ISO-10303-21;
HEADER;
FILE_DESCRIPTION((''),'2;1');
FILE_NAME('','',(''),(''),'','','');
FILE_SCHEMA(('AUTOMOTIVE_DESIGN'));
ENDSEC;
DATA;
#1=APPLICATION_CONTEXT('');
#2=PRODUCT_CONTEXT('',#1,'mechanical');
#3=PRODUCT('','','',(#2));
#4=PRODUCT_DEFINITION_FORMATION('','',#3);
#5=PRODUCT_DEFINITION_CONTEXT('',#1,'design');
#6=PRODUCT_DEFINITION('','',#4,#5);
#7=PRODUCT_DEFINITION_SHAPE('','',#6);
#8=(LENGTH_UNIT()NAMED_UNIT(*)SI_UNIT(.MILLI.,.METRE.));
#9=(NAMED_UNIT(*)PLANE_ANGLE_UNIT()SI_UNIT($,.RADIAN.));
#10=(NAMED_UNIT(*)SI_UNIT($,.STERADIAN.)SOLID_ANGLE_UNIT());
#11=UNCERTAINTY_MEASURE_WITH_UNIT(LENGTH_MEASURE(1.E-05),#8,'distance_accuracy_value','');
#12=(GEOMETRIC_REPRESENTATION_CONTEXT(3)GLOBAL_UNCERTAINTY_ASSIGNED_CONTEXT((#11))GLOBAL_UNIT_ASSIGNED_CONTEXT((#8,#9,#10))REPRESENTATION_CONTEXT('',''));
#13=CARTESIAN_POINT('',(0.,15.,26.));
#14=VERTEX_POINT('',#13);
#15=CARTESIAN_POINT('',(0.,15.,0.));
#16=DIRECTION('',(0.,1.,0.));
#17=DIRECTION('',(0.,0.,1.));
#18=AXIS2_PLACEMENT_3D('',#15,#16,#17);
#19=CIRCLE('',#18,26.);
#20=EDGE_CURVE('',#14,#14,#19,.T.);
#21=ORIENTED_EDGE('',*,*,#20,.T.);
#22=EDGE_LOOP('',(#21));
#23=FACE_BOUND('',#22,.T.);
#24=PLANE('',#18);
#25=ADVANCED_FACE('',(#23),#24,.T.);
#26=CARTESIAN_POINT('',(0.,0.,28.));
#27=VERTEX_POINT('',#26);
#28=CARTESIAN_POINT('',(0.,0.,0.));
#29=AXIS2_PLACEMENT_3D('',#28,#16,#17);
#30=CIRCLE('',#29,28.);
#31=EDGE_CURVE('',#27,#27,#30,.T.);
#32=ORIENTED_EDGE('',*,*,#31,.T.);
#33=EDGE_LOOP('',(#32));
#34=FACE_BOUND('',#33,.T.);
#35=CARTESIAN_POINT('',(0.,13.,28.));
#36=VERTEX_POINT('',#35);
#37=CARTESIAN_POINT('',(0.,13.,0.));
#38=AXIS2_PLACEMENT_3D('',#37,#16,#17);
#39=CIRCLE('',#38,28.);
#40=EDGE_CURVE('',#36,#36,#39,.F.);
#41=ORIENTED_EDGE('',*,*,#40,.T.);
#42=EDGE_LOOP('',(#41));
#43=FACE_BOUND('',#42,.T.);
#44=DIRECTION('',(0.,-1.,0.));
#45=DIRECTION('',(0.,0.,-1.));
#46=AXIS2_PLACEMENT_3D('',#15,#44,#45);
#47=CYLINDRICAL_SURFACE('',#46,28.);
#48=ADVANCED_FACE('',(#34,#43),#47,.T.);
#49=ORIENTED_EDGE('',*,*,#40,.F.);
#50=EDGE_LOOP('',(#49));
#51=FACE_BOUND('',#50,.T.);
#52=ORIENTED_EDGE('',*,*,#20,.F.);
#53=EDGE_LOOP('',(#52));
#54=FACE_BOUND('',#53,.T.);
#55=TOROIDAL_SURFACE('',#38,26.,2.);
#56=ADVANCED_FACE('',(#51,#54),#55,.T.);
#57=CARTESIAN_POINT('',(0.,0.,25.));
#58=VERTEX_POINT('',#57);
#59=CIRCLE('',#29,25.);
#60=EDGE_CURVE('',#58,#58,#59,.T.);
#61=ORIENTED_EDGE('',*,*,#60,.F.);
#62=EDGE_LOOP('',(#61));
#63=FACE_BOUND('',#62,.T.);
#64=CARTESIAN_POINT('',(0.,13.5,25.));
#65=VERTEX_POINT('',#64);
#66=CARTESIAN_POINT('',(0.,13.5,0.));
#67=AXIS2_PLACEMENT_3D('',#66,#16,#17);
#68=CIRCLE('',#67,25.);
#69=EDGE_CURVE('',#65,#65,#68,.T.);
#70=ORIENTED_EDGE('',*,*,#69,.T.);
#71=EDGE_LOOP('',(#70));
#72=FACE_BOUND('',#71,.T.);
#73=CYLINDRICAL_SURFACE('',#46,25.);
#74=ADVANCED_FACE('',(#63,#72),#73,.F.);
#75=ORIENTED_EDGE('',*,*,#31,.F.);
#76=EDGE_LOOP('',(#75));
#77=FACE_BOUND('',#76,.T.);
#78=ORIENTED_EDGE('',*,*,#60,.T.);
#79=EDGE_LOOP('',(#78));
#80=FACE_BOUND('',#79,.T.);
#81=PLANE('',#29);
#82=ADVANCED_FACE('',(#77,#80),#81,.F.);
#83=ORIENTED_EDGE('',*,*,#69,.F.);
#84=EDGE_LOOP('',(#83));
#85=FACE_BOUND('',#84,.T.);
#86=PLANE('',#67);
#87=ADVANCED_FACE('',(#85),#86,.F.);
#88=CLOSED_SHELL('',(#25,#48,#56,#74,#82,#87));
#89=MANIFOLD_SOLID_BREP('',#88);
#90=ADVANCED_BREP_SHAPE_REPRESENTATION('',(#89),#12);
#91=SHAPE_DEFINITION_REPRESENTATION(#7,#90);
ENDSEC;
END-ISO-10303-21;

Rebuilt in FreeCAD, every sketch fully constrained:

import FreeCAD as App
import Part
import Sketcher
Q = App.Units.Quantity


def edges_at(feature, points):
    """Names of the edges that pass closest to the given points."""
    edges = feature.Shape.Edges
    near = lambda p: min(range(len(edges)), key=lambda i: edges[i].distToShape(Part.Vertex(*p))[0])
    return sorted({f"Edge{near(p) + 1}" for p in points})

doc = App.newDocument("Part")
body = doc.addObject("PartDesign::Body", "Body")

# Sketch on XZ plane
sketch1 = body.newObject("Sketcher::SketchObject", "Sketch")
sketch1.AttachmentSupport = (doc.getObject("XZ_Plane"), [""])
sketch1.MapMode = "FlatFace"
sketch1.addGeometry([
    Part.Circle(App.Vector(0, 0, 0), App.Vector(0, 0, 1), 28),
    Part.Circle(App.Vector(0, 0, 0), App.Vector(0, 0, 1), 25),
], False)
sketch1.addConstraint([
    Sketcher.Constraint("Coincident", 0, 3, -1, 1),
    Sketcher.Constraint("Coincident", 1, 3, -1, 1),
    Sketcher.Constraint("Diameter", 0, Q("56 mm")),
    Sketcher.Constraint("Diameter", 1, Q("50 mm")),
])
pad1 = body.newObject("PartDesign::Pad", "Pad")
pad1.Profile = sketch1
pad1.Length = 15
pad1.Reversed = True

# Sketch on XZ plane
sketch2 = body.newObject("Sketcher::SketchObject", "Sketch001")
sketch2.AttachmentSupport = (doc.getObject("XZ_Plane"), [""])
sketch2.MapMode = "FlatFace"
sketch2.AttachmentOffset = App.Placement(App.Vector(0, 0, -15), App.Rotation())
sketch2.addGeometry(Part.Circle(App.Vector(0, 0, 0), App.Vector(0, 0, 1), 25.289752), False)
sketch2.addConstraint([
    Sketcher.Constraint("Coincident", 0, 3, -1, 1),
    Sketcher.Constraint("Diameter", 0, Q("50.579504 mm")),
])
pad2 = body.newObject("PartDesign::Pad", "Pad001")
pad2.Profile = sketch2
pad2.Length = 1.5
doc.recompute()

fillet = body.newObject("PartDesign::Fillet", "Fillet")
fillet.Base = (pad2, edges_at(pad2, [(-28, 15, 0)]))
fillet.Radius = 2

doc.recompute()
